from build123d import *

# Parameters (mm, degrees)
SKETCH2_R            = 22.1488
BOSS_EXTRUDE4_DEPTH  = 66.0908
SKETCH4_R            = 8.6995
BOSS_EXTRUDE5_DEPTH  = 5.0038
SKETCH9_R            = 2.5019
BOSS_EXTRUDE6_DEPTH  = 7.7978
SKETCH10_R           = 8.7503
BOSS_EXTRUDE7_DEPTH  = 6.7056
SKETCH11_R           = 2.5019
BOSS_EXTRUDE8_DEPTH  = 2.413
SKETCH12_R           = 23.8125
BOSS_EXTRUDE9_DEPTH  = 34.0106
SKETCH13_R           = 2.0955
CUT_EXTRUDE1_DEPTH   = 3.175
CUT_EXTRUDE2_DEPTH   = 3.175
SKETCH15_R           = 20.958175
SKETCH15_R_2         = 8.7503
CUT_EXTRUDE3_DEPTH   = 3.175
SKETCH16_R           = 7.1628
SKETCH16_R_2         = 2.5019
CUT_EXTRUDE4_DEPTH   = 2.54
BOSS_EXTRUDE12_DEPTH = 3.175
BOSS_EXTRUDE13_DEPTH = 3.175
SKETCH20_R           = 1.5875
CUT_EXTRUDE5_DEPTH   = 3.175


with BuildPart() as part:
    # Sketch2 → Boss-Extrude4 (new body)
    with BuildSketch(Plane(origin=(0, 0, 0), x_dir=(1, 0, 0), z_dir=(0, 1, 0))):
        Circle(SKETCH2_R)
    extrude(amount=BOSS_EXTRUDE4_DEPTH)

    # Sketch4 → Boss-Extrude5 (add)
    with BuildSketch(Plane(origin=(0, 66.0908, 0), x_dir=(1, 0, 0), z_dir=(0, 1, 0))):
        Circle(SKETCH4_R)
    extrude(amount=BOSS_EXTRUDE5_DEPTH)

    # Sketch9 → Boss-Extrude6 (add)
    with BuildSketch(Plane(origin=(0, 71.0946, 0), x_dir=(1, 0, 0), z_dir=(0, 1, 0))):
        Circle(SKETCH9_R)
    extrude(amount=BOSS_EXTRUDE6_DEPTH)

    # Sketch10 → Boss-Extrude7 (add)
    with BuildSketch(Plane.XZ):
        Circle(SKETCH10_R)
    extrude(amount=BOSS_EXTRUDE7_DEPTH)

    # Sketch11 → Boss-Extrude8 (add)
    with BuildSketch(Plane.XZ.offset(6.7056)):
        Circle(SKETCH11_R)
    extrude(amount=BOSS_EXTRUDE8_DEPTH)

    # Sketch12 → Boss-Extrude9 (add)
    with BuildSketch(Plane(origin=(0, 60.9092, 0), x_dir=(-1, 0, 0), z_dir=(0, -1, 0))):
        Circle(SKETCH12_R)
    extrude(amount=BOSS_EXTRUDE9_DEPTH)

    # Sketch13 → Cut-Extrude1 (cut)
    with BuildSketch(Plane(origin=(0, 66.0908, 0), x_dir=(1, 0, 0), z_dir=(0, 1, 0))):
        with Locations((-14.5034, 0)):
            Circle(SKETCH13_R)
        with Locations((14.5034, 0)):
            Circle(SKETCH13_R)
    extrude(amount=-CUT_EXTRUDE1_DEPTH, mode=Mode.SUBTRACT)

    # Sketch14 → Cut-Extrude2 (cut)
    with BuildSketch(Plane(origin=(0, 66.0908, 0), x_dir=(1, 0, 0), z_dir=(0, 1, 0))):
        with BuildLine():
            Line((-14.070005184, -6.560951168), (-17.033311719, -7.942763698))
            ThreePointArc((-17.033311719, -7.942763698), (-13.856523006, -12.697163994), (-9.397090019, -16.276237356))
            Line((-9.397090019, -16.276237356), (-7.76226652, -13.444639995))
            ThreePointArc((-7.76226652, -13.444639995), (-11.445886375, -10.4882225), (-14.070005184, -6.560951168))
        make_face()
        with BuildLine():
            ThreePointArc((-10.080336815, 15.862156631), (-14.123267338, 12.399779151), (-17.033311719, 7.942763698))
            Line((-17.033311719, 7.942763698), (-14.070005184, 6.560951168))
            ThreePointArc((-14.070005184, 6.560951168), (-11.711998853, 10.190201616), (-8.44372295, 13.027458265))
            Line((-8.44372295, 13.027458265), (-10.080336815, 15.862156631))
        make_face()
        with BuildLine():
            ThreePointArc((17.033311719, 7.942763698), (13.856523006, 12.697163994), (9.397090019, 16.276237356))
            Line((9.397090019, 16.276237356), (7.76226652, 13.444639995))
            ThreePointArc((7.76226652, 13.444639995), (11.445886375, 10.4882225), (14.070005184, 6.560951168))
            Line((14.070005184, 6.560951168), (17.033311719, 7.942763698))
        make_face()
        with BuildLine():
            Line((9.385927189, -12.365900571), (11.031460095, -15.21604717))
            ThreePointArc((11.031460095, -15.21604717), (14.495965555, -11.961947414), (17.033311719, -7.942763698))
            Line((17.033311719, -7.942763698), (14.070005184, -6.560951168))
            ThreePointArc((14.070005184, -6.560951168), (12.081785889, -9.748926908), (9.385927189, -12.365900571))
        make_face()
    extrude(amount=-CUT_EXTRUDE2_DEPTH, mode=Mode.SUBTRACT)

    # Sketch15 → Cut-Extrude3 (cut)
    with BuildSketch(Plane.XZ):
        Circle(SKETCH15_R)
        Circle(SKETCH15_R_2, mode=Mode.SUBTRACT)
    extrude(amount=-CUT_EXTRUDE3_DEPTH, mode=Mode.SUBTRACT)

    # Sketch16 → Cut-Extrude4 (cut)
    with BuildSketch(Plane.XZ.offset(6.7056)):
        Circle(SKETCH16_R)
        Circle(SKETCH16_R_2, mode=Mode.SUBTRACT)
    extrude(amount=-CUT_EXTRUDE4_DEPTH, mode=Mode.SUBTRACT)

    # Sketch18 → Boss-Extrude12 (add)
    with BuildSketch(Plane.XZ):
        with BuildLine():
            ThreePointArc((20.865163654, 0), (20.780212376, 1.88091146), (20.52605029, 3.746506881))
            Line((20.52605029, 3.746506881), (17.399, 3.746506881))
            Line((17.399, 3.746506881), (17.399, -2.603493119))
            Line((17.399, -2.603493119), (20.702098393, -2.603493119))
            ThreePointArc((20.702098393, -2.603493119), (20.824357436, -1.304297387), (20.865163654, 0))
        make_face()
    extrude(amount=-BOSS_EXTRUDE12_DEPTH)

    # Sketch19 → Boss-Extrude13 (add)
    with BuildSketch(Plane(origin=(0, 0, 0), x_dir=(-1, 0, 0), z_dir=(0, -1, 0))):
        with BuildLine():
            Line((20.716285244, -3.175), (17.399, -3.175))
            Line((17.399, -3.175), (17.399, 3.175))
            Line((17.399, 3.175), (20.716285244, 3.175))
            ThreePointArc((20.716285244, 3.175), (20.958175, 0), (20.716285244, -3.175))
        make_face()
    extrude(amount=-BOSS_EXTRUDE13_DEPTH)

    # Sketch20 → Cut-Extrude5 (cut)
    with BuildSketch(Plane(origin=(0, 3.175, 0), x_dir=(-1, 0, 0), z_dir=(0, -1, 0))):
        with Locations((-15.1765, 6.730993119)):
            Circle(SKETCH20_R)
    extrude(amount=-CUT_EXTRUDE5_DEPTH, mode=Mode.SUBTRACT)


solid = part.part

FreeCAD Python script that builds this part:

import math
import FreeCAD as App
import Part
import Sketcher

V = App.Vector
Q = App.Units.Quantity

doc = App.newDocument("Part")
body = doc.addObject("PartDesign::Body", "Body")

# Sketch on XZ plane
sketch1 = doc.addObject("Sketcher::SketchObject", "Sketch")
body.addObject(sketch1)
sketch1.AttachmentSupport = (doc.XZ_Plane, [""])
sketch1.MapMode = "FlatFace"
sketch1.addGeometry(Part.Circle(V(0, 0, 0), V(0, 0, 1), 22), False)
sketch1.addConstraint(Sketcher.Constraint("Coincident", 0, 3, -1, 1))
sketch1.addConstraint(Sketcher.Constraint("Diameter", 0, Q("1.744 in")))
pad1 = doc.addObject("PartDesign::Pad", "Pad")
body.addObject(pad1)
pad1.Profile = sketch1
pad1.Length = Q("2.602 in")
pad1.Reversed = True

# Sketch on XZ plane
sketch2 = doc.addObject("Sketcher::SketchObject", "Sketch001")
body.addObject(sketch2)
sketch2.AttachmentSupport = (doc.XZ_Plane, [""])
sketch2.MapMode = "FlatFace"
sketch2.AttachmentOffset = App.Placement(V(0, 0, -2.602 * 25.4), App.Rotation())
sketch2.addGeometry(Part.Circle(V(0, 0, 0), V(0, 0, 1), 9), False)
sketch2.addConstraint(Sketcher.Constraint("Coincident", 0, 3, -1, 1))
sketch2.addConstraint(Sketcher.Constraint("Diameter", 0, Q("0.685 in")))
pad2 = doc.addObject("PartDesign::Pad", "Pad001")
body.addObject(pad2)
pad2.Profile = sketch2
pad2.Length = Q("0.197 in")
pad2.Reversed = True

# Sketch on XZ plane
sketch3 = doc.addObject("Sketcher::SketchObject", "Sketch002")
body.addObject(sketch3)
sketch3.AttachmentSupport = (doc.XZ_Plane, [""])
sketch3.MapMode = "FlatFace"
sketch3.AttachmentOffset = App.Placement(V(0, 0, -2.799 * 25.4), App.Rotation())
sketch3.addGeometry(Part.Circle(V(0, 0, 0), V(0, 0, 1), 2.5), False)
sketch3.addConstraint(Sketcher.Constraint("Coincident", 0, 3, -1, 1))
sketch3.addConstraint(Sketcher.Constraint("Diameter", 0, Q("0.197 in")))
pad3 = doc.addObject("PartDesign::Pad", "Pad002")
body.addObject(pad3)
pad3.Profile = sketch3
pad3.Length = Q("0.307 in")
pad3.Reversed = True

# Sketch on XZ plane
sketch4 = doc.addObject("Sketcher::SketchObject", "Sketch003")
body.addObject(sketch4)
sketch4.AttachmentSupport = (doc.XZ_Plane, [""])
sketch4.MapMode = "FlatFace"
sketch4.addGeometry(Part.Circle(V(0, 0, 0), V(0, 0, 1), 9), False)
sketch4.addConstraint(Sketcher.Constraint("Coincident", 0, 3, -1, 1))
sketch4.addConstraint(Sketcher.Constraint("Diameter", 0, Q("0.689 in")))
pad4 = doc.addObject("PartDesign::Pad", "Pad003")
body.addObject(pad4)
pad4.Profile = sketch4
pad4.Length = Q("0.264 in")

# Sketch on XZ plane
sketch5 = doc.addObject("Sketcher::SketchObject", "Sketch004")
body.addObject(sketch5)
sketch5.AttachmentSupport = (doc.XZ_Plane, [""])
sketch5.MapMode = "FlatFace"
sketch5.AttachmentOffset = App.Placement(V(0, 0, 0.264 * 25.4), App.Rotation())
sketch5.addGeometry(Part.Circle(V(0, 0, 0), V(0, 0, 1), 2.5), False)
sketch5.addConstraint(Sketcher.Constraint("Coincident", 0, 3, -1, 1))
sketch5.addConstraint(Sketcher.Constraint("Diameter", 0, Q("0.197 in")))
pad5 = doc.addObject("PartDesign::Pad", "Pad004")
body.addObject(pad5)
pad5.Profile = sketch5
pad5.Length = Q("0.095 in")

# Sketch on XZ plane
sketch6 = doc.addObject("Sketcher::SketchObject", "Sketch005")
body.addObject(sketch6)
sketch6.AttachmentSupport = (doc.XZ_Plane, [""])
sketch6.MapMode = "FlatFace"
sketch6.AttachmentOffset = App.Placement(V(0, 0, -2.398 * 25.4), App.Rotation())
sketch6.addGeometry(Part.Circle(V(0, 0, 0), V(0, 0, 1), 24), False)
sketch6.addConstraint(Sketcher.Constraint("Coincident", 0, 3, -1, 1))
sketch6.addConstraint(Sketcher.Constraint("Diameter", 0, Q("1.875 in")))
pad6 = doc.addObject("PartDesign::Pad", "Pad005")
body.addObject(pad6)
pad6.Profile = sketch6
pad6.Length = Q("1.339 in")

# Sketch on XZ plane
sketch7 = doc.addObject("Sketcher::SketchObject", "Sketch006")
body.addObject(sketch7)
sketch7.AttachmentSupport = (doc.XZ_Plane, [""])
sketch7.MapMode = "FlatFace"
sketch7.AttachmentOffset = App.Placement(V(0, 0, -2.602 * 25.4), App.Rotation())
sketch7.addGeometry(Part.Circle(V(-14.5, 0, 0), V(0, 0, 1), 2.1), False)
sketch7.addGeometry(Part.Circle(V(14.5, 0, 0), V(0, 0, 1), 2.1), False)
sketch7.addConstraint(Sketcher.Constraint("Equal", 0, 1))
sketch7.addConstraint(Sketcher.Constraint("Symmetric", 0, 3, 1, 3, -1, 1))
sketch7.addConstraint(Sketcher.Constraint("PointOnObject", 0, 3, -1))
sketch7.addConstraint(Sketcher.Constraint("Diameter", 0, Q("0.165 in")))
sketch7.addConstraint(Sketcher.Constraint("DistanceX", 0, 3, -1, 1, Q("0.571 in")))
pocket1 = doc.addObject("PartDesign::Pocket", "Pocket")
body.addObject(pocket1)
pocket1.Profile = sketch7
pocket1.Length = Q("0.125 in")
pocket1.Reversed = True

# Sketch on XZ plane
sketch8 = doc.addObject("Sketcher::SketchObject", "Sketch007")
body.addObject(sketch8)
sketch8.AttachmentSupport = (doc.XZ_Plane, [""])
sketch8.MapMode = "FlatFace"
sketch8.AttachmentOffset = App.Placement(V(0, 0, -2.602 * 25.4), App.Rotation())
sketch8.addGeometry(Part.LineSegment(V(-14.1, 6.6, 0), V(-17, 7.9, 0)), False)
sketch8.addGeometry(Part.ArcOfCircle(Part.Circle(V(0, 0, 0), V(0, 0, 1), 18.8), math.radians(120), math.radians(155)), False)
sketch8.addGeometry(Part.LineSegment(V(-9.4, 16.3, 0), V(-7.8, 13.4, 0)), False)
sketch8.addGeometry(Part.ArcOfCircle(Part.Circle(V(0, 0, 0), V(0, 0, 1), 15.5), math.radians(120), math.radians(155)), False)
sketch8.addGeometry(Part.ArcOfCircle(Part.Circle(V(0, 0, 0), V(0, 0, 1), 18.8), math.radians(-155), math.radians(-122)), False)
sketch8.addGeometry(Part.LineSegment(V(-17, -7.9, 0), V(-14.1, -6.6, 0)), False)
sketch8.addGeometry(Part.ArcOfCircle(Part.Circle(V(0, 0, 0), V(0, 0, 1), 15.5), math.radians(-155), math.radians(-123)), False)
sketch8.addGeometry(Part.LineSegment(V(-8.4, -13, 0), V(-10.1, -15.9, 0)), False)
sketch8.addGeometry(Part.ArcOfCircle(Part.Circle(V(0, 0, 0), V(0, 0, 1), 18.8), math.radians(-60), math.radians(-25)), False)
sketch8.addGeometry(Part.LineSegment(V(9.4, -16.3, 0), V(7.8, -13.4, 0)), False)
sketch8.addGeometry(Part.ArcOfCircle(Part.Circle(V(0, 0, 0), V(0, 0, 1), 15.5), math.radians(-60), math.radians(-25)), False)
sketch8.addGeometry(Part.LineSegment(V(14.1, -6.6, 0), V(17, -7.9, 0)), False)
sketch8.addGeometry(Part.LineSegment(V(9.4, 12.4, 0), V(11, 15.2, 0)), False)
sketch8.addGeometry(Part.ArcOfCircle(Part.Circle(V(0, 0, 0), V(0, 0, 1), 18.8), math.radians(25), math.radians(54)), False)
sketch8.addGeometry(Part.LineSegment(V(17, 7.9, 0), V(14.1, 6.6, 0)), False)
sketch8.addGeometry(Part.ArcOfCircle(Part.Circle(V(0, 0, 0), V(0, 0, 1), 15.5), math.radians(25), math.radians(53)), False)
sketch8.addConstraint(Sketcher.Constraint("Coincident", 0, 2, 1, 2))
sketch8.addConstraint(Sketcher.Constraint("Coincident", 1, 1, 2, 1))
sketch8.addConstraint(Sketcher.Constraint("Coincident", 2, 2, 3, 1))
sketch8.addConstraint(Sketcher.Constraint("Coincident", 3, 2, 0, 1))
sketch8.addConstraint(Sketcher.Constraint("Coincident", 4, 1, 5, 1))
sketch8.addConstraint(Sketcher.Constraint("Coincident", 5, 2, 6, 1))
sketch8.addConstraint(Sketcher.Constraint("Coincident", 6, 2, 7, 1))
sketch8.addConstraint(Sketcher.Constraint("Coincident", 7, 2, 4, 2))
sketch8.addConstraint(Sketcher.Constraint("Coincident", 8, 1, 9, 1))
sketch8.addConstraint(Sketcher.Constraint("Coincident", 9, 2, 10, 1))
sketch8.addConstraint(Sketcher.Constraint("Coincident", 10, 2, 11, 1))
sketch8.addConstraint(Sketcher.Constraint("Coincident", 11, 2, 8, 2))
sketch8.addConstraint(Sketcher.Constraint("Coincident", 12, 2, 13, 2))
sketch8.addConstraint(Sketcher.Constraint("Coincident", 13, 1, 14, 1))
sketch8.addConstraint(Sketcher.Constraint("Coincident", 14, 2, 15, 1))
sketch8.addConstraint(Sketcher.Constraint("Coincident", 15, 2, 12, 1))
sketch8.addConstraint(Sketcher.Constraint("Coincident", 1, 3, -1, 1))
sketch8.addConstraint(Sketcher.Constraint("Coincident", 3, 3, -1, 1))
sketch8.addConstraint(Sketcher.Constraint("Coincident", 4, 3, -1, 1))
sketch8.addConstraint(Sketcher.Constraint("Coincident", 6, 3, -1, 1))
sketch8.addConstraint(Sketcher.Constraint("Coincident", 8, 3, -1, 1))
sketch8.addConstraint(Sketcher.Constraint("Coincident", 10, 3, -1, 1))
sketch8.addConstraint(Sketcher.Constraint("Coincident", 13, 3, -1, 1))
sketch8.addConstraint(Sketcher.Constraint("Coincident", 15, 3, -1, 1))
sketch8.addConstraint(Sketcher.Constraint("Equal", 1, 4))
sketch8.addConstraint(Sketcher.Constraint("Equal", 3, 6))
sketch8.addConstraint(Sketcher.Constraint("Equal", 4, 8))
sketch8.addConstraint(Sketcher.Constraint("Equal", 6, 10))
sketch8.addConstraint(Sketcher.Constraint("Equal", 8, 13))
sketch8.addConstraint(Sketcher.Constraint("Equal", 10, 15))
sketch8.addConstraint(Sketcher.Constraint("Parallel", 2, 9))
sketch8.addConstraint(Sketcher.Constraint("Parallel", 0, 11))
sketch8.addConstraint(Sketcher.Constraint("Parallel", 7, 12))
sketch8.addConstraint(Sketcher.Constraint("Parallel", 5, 14))
sketch8.addConstraint(Sketcher.Constraint("Horizontal", 5, 2, 10, 2))
sketch8.addConstraint(Sketcher.Constraint("Horizontal", 4, 1, 11, 2))
sketch8.addConstraint(Sketcher.Constraint("Horizontal", 0, 2, 13, 1))
sketch8.addConstraint(Sketcher.Constraint("Vertical", 0, 2, 4, 1))
sketch8.addConstraint(Sketcher.Constraint("Angle", 0, Q("155 deg")))
sketch8.addConstraint(Sketcher.Constraint("Angle", 2, Q("-60 deg")))
sketch8.addConstraint(Sketcher.Constraint("Angle", 7, Q("-120 deg")))
sketch8.addConstraint(Sketcher.Constraint("Radius", 1, 18.79418))
sketch8.addConstraint(Sketcher.Constraint("Radius", 3, 15.524533))
sketch8.addConstraint(Sketcher.Constraint("DistanceY", -1, 1, 15, 2, 12.365901))
sketch8.addConstraint(Sketcher.Constraint("DistanceX", 0, 2, -1, 1, 17.033312))
sketch8.addConstraint(Sketcher.Constraint("DistanceX", 1, 1, -1, 1, 9.39709))
sketch8.addConstraint(Sketcher.Constraint("DistanceY", 6, 2, -1, 1, 13.027458))
sketch8.addConstraint(Sketcher.Constraint("DistanceX", -1, 1, 8, 1, 9.39709))
pocket2 = doc.addObject("PartDesign::Pocket", "Pocket001")
body.addObject(pocket2)
pocket2.Profile = sketch8
pocket2.Length = Q("0.125 in")
pocket2.Reversed = True

# Sketch on XZ plane
sketch9 = doc.addObject("Sketcher::SketchObject", "Sketch008")
body.addObject(sketch9)
sketch9.AttachmentSupport = (doc.XZ_Plane, [""])
sketch9.MapMode = "FlatFace"
sketch9.addGeometry(Part.Circle(V(0, 0, 0), V(0, 0, 1), 21), False)
sketch9.addGeometry(Part.Circle(V(0, 0, 0), V(0, 0, 1), 9), False)
sketch9.addConstraint(Sketcher.Constraint("Coincident", 0, 3, -1, 1))
sketch9.addConstraint(Sketcher.Constraint("Coincident", 1, 3, -1, 1))
sketch9.addConstraint(Sketcher.Constraint("Diameter", 1, Q("0.689 in")))
sketch9.addConstraint(Sketcher.Constraint("Diameter", 0, 41.91635))
pocket3 = doc.addObject("PartDesign::Pocket", "Pocket002")
body.addObject(pocket3)
pocket3.Profile = sketch9
pocket3.Length = Q("0.125 in")

# Sketch on XZ plane
sketch10 = doc.addObject("Sketcher::SketchObject", "Sketch009")
body.addObject(sketch10)
sketch10.AttachmentSupport = (doc.XZ_Plane, [""])
sketch10.MapMode = "FlatFace"
sketch10.AttachmentOffset = App.Placement(V(0, 0, 0.264 * 25.4), App.Rotation())
sketch10.addGeometry(Part.Circle(V(0, 0, 0), V(0, 0, 1), 7.2), False)
sketch10.addGeometry(Part.Circle(V(0, 0, 0), V(0, 0, 1), 2.5), False)
sketch10.addConstraint(Sketcher.Constraint("Coincident", 0, 3, -1, 1))
sketch10.addConstraint(Sketcher.Constraint("Coincident", 1, 3, -1, 1))
sketch10.addConstraint(Sketcher.Constraint("Diameter", 0, Q("0.564 in")))
sketch10.addConstraint(Sketcher.Constraint("Diameter", 1, Q("0.197 in")))
pocket4 = doc.addObject("PartDesign::Pocket", "Pocket003")
body.addObject(pocket4)
pocket4.Profile = sketch10
pocket4.Length = Q("0.1 in")

# Sketch on XZ plane
sketch11 = doc.addObject("Sketcher::SketchObject", "Sketch010")
body.addObject(sketch11)
sketch11.AttachmentSupport = (doc.XZ_Plane, [""])
sketch11.MapMode = "FlatFace"
sketch11.addGeometry(Part.ArcOfCircle(Part.Circle(V(0, 0, 0), V(0, 0, 1), 20.9), math.radians(0), math.radians(10.34)), False)
sketch11.addGeometry(Part.LineSegment(V(20.5, 3.7, 0), V(17.4, 3.7, 0)), False)
sketch11.addGeometry(Part.LineSegment(V(17.4, 3.7, 0), V(17.4, -2.6, 0)), False)
sketch11.addGeometry(Part.LineSegment(V(17.4, -2.6, 0), V(20.7, -2.6, 0)), False)
sketch11.addGeometry(Part.ArcOfCircle(Part.Circle(V(0, 0, 0), V(0, 0, 1), 20.9), math.radians(-7.17), math.radians(0)), False)
sketch11.addConstraint(Sketcher.Constraint("Coincident", 0, 2, 1, 1))
sketch11.addConstraint(Sketcher.Constraint("Coincident", 1, 2, 2, 1))
sketch11.addConstraint(Sketcher.Constraint("Coincident", 2, 2, 3, 1))
sketch11.addConstraint(Sketcher.Constraint("Coincident", 3, 2, 4, 1))
sketch11.addConstraint(Sketcher.Constraint("Tangent", 4, 2, 0, 1))
sketch11.addConstraint(Sketcher.Constraint("Horizontal", 1))
sketch11.addConstraint(Sketcher.Constraint("Vertical", 2))
sketch11.addConstraint(Sketcher.Constraint("Horizontal", 3))
sketch11.addConstraint(Sketcher.Constraint("Coincident", 0, 3, -1, 1))
sketch11.addConstraint(Sketcher.Constraint("Equal", 0, 4))
sketch11.addConstraint(Sketcher.Constraint("PointOnObject", 4, 2, -1))
sketch11.addConstraint(Sketcher.Constraint("DistanceY", 2, 2, 2, 1, Q("0.25 in")))
sketch11.addConstraint(Sketcher.Constraint("DistanceX", -1, 1, 1, 2, Q("0.685 in")))
sketch11.addConstraint(Sketcher.Constraint("DistanceX", 3, 1, 3, 2, 3.303098))
sketch11.addConstraint(Sketcher.Constraint("Radius", 0, 20.865164))
pad7 = doc.addObject("PartDesign::Pad", "Pad006")
body.addObject(pad7)
pad7.Profile = sketch11
pad7.Length = Q("0.125 in")
pad7.Reversed = True

# Sketch on XZ plane
sketch12 = doc.addObject("Sketcher::SketchObject", "Sketch011")
body.addObject(sketch12)
sketch12.AttachmentSupport = (doc.XZ_Plane, [""])
sketch12.MapMode = "FlatFace"
sketch12.addGeometry(Part.LineSegment(V(-17.4, 3.2, 0), V(-20.7, 3.2, 0)), False)
sketch12.addGeometry(Part.ArcOfCircle(Part.Circle(V(0, 0, 0), V(0, 0, 1), 21), math.radians(171.29), math.radians(188.71)), False)
sketch12.addGeometry(Part.LineSegment(V(-20.7, -3.2, 0), V(-17.4, -3.2, 0)), False)
sketch12.addGeometry(Part.LineSegment(V(-17.4, -3.2, 0), V(-17.4, 3.2, 0)), False)
sketch12.addConstraint(Sketcher.Constraint("Coincident", 0, 2, 1, 1))
sketch12.addConstraint(Sketcher.Constraint("Coincident", 1, 2, 2, 1))
sketch12.addConstraint(Sketcher.Constraint("Coincident", 2, 2, 3, 1))
sketch12.addConstraint(Sketcher.Constraint("Coincident", 3, 2, 0, 1))
sketch12.addConstraint(Sketcher.Constraint("Horizontal", 0))
sketch12.addConstraint(Sketcher.Constraint("Horizontal", 2))
sketch12.addConstraint(Sketcher.Constraint("Vertical", 3))
sketch12.addConstraint(Sketcher.Constraint("Coincident", 1, 3, -1, 1))
sketch12.addConstraint(Sketcher.Constraint("Vertical", 0, 2, 1, 2))
sketch12.addConstraint(Sketcher.Constraint("DistanceY", 3, 1, 3, 2, Q("0.25 in")))
sketch12.addConstraint(Sketcher.Constraint("DistanceX", 2, 2, -1, 1, Q("0.685 in")))
sketch12.addConstraint(Sketcher.Constraint("Radius", 1, 20.958175))
pad8 = doc.addObject("PartDesign::Pad", "Pad007")
body.addObject(pad8)
pad8.Profile = sketch12
pad8.Length = Q("0.125 in")
pad8.Reversed = True

# Sketch on XZ plane
sketch13 = doc.addObject("Sketcher::SketchObject", "Sketch012")
body.addObject(sketch13)
sketch13.AttachmentSupport = (doc.XZ_Plane, [""])
sketch13.MapMode = "FlatFace"
sketch13.AttachmentOffset = App.Placement(V(0, 0, -0.125 * 25.4), App.Rotation())
sketch13.addGeometry(Part.Circle(V(15.2, -6.7, 0), V(0, 0, 1), 1.6), False)
sketch13.addConstraint(Sketcher.Constraint("Diameter", 0, Q("0.125 in")))
sketch13.addConstraint(Sketcher.Constraint("DistanceX", -1, 1, 0, 3, Q("0.5975 in")))
sketch13.addConstraint(Sketcher.Constraint("DistanceY", 0, 3, -1, 1, 6.730993))
pocket5 = doc.addObject("PartDesign::Pocket", "Pocket004")
body.addObject(pocket5)
pocket5.Profile = sketch13
pocket5.Length = Q("0.125 in")

doc.recompute()
